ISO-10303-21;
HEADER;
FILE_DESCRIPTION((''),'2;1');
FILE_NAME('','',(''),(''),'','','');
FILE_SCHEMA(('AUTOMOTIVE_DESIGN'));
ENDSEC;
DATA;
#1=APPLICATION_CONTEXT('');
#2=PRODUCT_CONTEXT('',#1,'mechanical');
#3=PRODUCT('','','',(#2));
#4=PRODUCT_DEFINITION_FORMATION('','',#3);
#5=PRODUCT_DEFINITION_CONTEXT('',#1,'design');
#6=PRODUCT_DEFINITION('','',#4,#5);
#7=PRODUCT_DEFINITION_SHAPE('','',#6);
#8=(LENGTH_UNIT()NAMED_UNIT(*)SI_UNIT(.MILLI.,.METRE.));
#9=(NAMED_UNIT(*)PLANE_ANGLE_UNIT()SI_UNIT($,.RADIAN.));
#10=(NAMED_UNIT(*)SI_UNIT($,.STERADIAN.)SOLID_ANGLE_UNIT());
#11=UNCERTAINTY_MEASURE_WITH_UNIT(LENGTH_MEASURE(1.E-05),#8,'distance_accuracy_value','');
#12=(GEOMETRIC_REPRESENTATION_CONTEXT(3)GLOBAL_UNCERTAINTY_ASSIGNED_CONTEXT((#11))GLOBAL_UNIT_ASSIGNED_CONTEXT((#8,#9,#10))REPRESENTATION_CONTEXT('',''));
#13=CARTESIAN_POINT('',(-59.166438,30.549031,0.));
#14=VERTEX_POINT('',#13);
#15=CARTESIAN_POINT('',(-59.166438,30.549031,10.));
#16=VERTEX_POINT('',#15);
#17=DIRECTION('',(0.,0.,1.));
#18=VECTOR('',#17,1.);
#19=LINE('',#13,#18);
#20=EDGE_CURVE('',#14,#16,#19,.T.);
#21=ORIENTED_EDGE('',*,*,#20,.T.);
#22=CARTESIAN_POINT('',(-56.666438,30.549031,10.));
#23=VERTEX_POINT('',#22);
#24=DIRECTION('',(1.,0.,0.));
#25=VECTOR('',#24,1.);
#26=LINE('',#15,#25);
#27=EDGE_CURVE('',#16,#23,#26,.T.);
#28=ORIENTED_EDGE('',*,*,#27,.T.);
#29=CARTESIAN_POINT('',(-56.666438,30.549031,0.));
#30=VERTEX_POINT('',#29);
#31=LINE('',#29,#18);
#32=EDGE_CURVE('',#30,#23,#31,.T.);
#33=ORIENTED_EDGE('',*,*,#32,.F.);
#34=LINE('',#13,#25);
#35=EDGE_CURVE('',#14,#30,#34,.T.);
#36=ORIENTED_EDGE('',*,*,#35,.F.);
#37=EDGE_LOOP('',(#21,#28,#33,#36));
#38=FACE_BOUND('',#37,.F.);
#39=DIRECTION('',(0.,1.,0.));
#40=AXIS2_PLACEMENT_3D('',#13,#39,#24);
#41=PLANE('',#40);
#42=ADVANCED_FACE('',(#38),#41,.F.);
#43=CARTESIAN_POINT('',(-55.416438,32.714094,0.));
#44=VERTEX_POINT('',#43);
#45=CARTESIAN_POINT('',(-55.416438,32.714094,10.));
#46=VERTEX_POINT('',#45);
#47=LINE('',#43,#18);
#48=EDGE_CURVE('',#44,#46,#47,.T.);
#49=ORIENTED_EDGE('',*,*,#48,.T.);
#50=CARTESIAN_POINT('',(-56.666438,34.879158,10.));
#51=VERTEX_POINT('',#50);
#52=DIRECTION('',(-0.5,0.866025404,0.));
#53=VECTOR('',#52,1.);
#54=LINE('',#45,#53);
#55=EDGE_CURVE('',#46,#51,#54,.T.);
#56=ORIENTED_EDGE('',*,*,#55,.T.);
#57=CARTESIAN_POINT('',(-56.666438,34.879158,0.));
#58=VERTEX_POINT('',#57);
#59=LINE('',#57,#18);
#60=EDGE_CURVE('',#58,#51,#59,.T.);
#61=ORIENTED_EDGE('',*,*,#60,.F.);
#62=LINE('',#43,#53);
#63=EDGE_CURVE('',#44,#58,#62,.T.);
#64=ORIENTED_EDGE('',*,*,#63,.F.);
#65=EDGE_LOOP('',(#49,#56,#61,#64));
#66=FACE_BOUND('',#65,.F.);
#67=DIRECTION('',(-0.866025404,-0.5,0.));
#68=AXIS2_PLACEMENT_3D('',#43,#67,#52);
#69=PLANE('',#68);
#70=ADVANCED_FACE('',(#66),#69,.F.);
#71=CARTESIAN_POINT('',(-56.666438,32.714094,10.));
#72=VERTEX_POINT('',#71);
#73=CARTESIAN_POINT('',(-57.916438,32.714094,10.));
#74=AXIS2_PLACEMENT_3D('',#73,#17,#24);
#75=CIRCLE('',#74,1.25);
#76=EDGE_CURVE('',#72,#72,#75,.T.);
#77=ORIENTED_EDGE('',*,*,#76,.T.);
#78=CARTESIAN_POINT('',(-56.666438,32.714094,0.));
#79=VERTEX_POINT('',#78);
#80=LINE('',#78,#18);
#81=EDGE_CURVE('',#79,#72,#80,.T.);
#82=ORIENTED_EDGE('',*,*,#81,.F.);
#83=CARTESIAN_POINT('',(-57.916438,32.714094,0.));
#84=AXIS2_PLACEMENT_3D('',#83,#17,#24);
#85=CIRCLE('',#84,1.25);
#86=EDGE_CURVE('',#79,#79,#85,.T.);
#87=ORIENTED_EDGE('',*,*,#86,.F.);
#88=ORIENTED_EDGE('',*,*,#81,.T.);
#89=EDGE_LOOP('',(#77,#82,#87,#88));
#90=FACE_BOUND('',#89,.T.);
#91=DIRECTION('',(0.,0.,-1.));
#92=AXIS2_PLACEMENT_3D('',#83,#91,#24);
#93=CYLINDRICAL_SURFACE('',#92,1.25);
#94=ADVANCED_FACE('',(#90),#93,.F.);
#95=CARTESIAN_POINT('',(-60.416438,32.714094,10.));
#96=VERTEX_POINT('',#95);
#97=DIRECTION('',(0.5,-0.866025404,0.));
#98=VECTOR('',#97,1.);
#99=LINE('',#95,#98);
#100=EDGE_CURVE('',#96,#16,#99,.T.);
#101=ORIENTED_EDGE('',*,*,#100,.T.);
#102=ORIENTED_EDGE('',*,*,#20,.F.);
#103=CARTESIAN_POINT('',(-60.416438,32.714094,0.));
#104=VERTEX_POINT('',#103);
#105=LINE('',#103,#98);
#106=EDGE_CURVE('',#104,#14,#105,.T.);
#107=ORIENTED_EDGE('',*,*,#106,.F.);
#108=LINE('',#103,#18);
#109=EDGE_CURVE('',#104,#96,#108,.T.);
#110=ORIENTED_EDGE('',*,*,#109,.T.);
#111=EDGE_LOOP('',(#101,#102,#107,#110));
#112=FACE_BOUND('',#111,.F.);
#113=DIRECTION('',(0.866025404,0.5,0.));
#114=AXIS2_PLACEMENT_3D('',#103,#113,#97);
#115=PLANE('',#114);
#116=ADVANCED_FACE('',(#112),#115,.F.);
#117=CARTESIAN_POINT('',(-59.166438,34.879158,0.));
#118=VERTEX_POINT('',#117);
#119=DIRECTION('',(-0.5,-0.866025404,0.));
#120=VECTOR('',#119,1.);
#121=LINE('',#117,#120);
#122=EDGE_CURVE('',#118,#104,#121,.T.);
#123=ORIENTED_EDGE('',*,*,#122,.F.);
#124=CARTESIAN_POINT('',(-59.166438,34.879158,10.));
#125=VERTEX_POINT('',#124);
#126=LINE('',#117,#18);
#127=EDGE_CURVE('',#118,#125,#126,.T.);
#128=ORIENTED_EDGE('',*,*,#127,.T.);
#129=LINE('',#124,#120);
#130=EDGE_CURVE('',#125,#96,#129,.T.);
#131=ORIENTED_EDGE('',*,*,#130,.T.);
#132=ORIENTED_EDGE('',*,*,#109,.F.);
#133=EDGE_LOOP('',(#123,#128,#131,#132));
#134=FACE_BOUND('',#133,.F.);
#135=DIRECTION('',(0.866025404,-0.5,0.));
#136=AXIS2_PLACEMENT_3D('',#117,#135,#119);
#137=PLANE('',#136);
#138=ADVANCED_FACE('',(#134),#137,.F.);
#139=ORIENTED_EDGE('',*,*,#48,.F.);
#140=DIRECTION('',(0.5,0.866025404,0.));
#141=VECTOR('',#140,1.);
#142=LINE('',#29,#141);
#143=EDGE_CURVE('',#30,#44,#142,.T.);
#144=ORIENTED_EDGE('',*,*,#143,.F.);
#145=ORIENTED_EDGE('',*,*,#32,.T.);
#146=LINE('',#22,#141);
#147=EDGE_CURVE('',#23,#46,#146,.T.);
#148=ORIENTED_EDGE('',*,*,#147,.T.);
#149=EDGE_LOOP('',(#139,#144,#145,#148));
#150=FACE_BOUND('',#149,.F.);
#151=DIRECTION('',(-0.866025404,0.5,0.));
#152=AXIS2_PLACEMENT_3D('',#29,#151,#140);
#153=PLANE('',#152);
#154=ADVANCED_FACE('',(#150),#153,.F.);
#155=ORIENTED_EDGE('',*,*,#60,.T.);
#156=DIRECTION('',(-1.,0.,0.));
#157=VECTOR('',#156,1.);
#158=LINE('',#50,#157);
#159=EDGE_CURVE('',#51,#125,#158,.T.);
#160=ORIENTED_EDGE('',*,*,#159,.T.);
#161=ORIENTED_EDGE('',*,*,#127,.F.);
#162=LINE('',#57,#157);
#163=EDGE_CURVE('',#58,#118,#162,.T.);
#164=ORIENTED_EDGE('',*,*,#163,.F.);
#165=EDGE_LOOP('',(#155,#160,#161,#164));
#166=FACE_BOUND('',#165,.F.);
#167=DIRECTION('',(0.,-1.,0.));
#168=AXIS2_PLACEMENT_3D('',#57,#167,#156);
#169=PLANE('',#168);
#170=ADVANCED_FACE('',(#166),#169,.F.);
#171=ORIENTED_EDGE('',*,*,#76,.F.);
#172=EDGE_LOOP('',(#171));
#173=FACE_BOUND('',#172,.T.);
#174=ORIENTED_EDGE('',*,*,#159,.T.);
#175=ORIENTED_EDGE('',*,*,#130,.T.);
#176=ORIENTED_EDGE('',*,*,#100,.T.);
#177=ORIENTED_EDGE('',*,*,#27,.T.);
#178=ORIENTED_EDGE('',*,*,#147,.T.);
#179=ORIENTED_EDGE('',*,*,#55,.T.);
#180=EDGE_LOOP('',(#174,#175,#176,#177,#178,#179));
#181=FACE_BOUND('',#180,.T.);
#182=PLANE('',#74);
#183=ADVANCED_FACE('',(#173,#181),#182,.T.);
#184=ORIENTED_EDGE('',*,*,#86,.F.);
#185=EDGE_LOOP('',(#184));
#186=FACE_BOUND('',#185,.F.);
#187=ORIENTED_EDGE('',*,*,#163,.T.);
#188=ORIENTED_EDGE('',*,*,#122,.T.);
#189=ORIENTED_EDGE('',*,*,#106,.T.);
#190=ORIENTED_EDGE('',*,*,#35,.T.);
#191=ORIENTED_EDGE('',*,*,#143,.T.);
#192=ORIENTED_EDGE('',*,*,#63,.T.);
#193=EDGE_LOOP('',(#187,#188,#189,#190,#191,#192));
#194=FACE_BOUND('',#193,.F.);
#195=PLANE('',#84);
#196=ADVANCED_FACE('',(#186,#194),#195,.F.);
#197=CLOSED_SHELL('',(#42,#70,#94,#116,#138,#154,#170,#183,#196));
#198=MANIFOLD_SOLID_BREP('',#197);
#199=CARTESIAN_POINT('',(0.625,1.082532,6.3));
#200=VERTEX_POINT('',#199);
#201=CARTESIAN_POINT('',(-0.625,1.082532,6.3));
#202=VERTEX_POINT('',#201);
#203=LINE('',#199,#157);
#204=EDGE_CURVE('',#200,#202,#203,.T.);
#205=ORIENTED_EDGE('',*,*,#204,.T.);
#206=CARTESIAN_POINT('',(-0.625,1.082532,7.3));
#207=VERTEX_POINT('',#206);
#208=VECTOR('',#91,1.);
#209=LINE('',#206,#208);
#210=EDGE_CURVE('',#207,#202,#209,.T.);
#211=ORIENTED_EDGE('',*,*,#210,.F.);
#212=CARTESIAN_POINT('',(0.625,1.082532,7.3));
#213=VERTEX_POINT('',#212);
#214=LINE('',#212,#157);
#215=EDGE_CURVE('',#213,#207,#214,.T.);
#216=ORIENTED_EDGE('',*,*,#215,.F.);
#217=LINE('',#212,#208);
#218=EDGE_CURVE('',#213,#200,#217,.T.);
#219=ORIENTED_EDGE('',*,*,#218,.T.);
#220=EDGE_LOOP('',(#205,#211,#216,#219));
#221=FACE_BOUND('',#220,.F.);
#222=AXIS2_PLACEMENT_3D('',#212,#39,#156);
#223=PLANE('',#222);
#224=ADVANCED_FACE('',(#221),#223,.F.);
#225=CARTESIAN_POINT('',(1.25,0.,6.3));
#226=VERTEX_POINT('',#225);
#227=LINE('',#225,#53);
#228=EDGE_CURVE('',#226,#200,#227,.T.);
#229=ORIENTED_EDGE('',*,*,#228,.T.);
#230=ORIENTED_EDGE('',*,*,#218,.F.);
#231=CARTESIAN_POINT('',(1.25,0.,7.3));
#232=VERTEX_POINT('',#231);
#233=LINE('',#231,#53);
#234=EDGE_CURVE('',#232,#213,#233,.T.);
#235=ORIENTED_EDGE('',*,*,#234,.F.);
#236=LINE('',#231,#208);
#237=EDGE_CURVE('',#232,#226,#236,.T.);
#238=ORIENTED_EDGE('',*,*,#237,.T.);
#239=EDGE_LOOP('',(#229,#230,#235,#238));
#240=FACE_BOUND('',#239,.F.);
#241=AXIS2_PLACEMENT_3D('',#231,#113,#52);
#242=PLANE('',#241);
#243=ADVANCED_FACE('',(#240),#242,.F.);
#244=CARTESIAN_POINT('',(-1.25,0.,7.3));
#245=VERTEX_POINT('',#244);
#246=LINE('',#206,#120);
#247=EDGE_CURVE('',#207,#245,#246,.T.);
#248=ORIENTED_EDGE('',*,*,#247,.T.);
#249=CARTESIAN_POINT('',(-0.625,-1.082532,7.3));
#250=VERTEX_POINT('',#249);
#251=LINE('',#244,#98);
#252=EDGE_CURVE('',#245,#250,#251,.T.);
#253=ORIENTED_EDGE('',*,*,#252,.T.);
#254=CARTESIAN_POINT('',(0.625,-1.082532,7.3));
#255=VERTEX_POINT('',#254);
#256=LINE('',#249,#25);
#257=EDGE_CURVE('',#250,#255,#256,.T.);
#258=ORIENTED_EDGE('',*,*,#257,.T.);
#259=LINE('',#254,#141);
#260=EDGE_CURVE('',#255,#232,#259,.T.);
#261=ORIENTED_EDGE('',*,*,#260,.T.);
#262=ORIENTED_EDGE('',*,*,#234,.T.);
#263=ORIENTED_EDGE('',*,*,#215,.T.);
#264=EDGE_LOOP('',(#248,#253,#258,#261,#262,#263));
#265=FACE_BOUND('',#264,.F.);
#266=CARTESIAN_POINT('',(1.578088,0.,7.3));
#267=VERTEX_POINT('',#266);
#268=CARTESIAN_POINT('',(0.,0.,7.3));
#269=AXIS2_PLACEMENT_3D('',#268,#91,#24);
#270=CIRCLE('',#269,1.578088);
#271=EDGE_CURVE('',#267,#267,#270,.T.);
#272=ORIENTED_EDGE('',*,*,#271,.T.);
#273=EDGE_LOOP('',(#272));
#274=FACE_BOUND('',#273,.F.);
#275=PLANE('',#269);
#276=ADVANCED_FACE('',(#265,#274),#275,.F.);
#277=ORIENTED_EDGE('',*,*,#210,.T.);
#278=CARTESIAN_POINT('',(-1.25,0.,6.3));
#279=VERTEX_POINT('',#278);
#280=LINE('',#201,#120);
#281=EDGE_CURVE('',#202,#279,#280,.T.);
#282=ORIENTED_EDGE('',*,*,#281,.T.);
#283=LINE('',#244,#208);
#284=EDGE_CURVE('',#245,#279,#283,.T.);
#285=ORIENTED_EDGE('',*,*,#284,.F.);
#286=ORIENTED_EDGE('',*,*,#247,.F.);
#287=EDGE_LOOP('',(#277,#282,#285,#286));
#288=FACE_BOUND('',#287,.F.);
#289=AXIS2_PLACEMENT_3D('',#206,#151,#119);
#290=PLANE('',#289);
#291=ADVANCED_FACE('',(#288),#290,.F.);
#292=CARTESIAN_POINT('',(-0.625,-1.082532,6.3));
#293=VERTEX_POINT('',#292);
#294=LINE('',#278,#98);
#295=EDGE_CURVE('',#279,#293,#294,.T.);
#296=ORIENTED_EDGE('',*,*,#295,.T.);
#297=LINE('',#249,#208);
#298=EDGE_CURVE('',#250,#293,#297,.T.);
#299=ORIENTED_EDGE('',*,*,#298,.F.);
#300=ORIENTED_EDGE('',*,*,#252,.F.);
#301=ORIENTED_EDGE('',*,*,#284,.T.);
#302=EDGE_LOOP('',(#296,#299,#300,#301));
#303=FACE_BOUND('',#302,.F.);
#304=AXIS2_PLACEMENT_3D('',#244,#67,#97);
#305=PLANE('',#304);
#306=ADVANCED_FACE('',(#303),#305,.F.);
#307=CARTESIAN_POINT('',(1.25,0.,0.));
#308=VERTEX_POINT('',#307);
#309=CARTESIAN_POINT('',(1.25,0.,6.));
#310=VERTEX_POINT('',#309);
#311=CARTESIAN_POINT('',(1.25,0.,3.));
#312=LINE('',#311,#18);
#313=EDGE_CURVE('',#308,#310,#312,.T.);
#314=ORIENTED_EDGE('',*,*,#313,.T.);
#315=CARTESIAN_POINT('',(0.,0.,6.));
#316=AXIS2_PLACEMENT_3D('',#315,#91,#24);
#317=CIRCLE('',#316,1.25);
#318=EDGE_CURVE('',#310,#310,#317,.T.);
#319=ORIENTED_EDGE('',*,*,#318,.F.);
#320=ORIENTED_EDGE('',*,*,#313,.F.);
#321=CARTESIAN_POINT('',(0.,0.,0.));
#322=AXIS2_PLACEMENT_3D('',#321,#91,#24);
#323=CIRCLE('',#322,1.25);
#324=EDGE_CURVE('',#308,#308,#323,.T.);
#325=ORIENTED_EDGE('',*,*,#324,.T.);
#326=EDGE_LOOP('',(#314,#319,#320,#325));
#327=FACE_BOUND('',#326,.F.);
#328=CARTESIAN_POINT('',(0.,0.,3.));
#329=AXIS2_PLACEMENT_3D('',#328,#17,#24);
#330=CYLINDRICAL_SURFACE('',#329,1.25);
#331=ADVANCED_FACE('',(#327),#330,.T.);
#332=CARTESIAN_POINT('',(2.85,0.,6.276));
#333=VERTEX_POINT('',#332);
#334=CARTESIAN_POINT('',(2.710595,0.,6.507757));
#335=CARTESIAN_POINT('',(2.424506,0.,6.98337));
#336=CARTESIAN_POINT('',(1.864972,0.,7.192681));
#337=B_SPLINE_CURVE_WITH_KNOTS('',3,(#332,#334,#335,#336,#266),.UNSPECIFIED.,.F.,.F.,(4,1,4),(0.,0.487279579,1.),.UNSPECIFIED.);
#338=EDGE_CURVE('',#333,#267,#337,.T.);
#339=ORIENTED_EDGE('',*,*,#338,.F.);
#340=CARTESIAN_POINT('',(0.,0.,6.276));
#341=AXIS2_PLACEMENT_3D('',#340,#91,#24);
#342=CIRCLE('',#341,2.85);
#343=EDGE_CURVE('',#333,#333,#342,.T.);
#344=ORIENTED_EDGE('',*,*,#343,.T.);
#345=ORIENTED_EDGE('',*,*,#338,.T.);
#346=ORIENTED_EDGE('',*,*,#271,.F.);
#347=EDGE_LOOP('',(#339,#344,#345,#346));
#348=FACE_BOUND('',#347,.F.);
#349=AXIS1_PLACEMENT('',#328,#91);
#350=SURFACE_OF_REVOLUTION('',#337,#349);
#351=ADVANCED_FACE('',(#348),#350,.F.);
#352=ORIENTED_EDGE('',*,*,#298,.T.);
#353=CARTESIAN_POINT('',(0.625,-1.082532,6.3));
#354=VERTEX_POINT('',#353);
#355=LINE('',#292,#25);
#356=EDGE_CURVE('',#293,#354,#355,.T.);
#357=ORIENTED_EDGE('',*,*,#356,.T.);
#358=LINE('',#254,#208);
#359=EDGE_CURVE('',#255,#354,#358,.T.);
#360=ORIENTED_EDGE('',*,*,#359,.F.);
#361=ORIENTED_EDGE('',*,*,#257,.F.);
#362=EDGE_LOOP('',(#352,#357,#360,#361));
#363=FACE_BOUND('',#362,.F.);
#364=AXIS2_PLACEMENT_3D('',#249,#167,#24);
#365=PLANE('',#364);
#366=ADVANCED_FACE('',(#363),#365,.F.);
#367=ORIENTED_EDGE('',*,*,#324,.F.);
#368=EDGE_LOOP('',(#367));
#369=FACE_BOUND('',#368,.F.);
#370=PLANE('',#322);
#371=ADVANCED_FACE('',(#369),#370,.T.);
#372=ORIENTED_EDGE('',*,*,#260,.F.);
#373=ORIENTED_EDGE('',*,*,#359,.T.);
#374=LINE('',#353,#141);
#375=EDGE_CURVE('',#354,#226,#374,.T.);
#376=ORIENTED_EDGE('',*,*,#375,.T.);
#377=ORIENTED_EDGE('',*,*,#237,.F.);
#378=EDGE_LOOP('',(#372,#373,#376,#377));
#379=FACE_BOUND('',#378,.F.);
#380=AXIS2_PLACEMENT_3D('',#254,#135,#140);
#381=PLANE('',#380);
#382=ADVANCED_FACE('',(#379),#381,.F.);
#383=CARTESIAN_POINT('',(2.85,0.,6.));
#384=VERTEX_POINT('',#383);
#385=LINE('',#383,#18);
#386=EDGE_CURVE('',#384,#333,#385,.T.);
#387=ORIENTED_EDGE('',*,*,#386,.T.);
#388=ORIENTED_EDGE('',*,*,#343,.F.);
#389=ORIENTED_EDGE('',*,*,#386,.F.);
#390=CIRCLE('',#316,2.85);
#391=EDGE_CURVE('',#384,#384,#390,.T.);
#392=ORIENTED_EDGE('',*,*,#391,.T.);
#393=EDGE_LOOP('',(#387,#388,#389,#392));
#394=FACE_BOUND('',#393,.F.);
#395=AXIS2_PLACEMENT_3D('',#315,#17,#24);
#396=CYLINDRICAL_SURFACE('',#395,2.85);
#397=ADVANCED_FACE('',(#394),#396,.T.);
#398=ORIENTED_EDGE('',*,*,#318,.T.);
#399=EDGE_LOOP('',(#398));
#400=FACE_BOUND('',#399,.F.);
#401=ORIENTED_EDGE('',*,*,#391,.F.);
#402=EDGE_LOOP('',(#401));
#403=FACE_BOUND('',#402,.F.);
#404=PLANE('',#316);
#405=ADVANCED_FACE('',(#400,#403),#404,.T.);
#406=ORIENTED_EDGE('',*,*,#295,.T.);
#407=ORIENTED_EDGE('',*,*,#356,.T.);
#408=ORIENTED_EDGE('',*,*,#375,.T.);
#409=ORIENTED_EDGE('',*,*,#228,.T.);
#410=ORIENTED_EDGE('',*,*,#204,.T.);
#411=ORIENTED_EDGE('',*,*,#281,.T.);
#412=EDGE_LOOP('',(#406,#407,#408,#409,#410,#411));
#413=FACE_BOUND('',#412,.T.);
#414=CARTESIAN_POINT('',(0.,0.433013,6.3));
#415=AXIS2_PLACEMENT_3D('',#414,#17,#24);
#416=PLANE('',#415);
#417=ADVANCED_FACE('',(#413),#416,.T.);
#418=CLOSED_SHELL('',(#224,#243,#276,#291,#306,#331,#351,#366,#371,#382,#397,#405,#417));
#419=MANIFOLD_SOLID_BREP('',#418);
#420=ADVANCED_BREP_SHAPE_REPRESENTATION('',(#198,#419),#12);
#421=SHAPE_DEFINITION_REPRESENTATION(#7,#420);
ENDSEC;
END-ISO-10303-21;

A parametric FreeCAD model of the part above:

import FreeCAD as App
import Part
import Sketcher
from FreeCAD import Vector
Q = App.Units.Quantity

doc = App.newDocument("Part")
params = doc.addObject("Spreadsheet::Sheet", "Params")
for row, (alias, value) in enumerate([
    ("sketch1_height", "6 mm"),
    ("sketch1_width", "1.6 mm"),
    ("revolution_angle", "360 deg"),
    ("sketch2_width", "1.25 mm"),
    ("pocket1_length", "1 mm"),
    ("sketch3_diameter", "2.5 mm"),
    ("sketch3_width", "2.5 mm"),
    ("pad1_length", "10 mm"),
], start=1):
    params.set(f"A{row}", alias)
    params.set(f"B{row}", "=" + value)
    params.setAlias(f"B{row}", alias)

body = doc.addObject("PartDesign::Body", "Body")

# Sketch on XZ plane
sketch1 = body.newObject("Sketcher::SketchObject", "Sketch")
sketch1.AttachmentSupport = (doc.getObject("XZ_Plane"), [""])
sketch1.MapMode = "FlatFace"
sketch1.addGeometry([
    Part.LineSegment(Vector(0, 0, 0), Vector(1.25, 0, 0)),  # 0
    Part.LineSegment(Vector(1.25, 0, 0), Vector(1.25, 6, 0)),  # 1
    Part.LineSegment(Vector(1.25, 6, 0), Vector(2.85, 6, 0)),  # 2
    Part.LineSegment(Vector(2.85, 6, 0), Vector(2.85, 6.276, 0)),  # 3
    Part.BSplineCurve([Vector(2.85, 6.276, 0), Vector(2.710595, 6.507757, 0), Vector(2.424506, 6.98337, 0), Vector(1.864972, 7.192681, 0), Vector(1.578088, 7.3, 0)], [4, 1, 4], [0, 0.487279579, 1], False, 3, [1, 1, 1, 1, 1], False),  # 4
    Part.LineSegment(Vector(1.578088, 7.3, 0), Vector(0, 7.3, 0)),  # 5
    Part.LineSegment(Vector(0, 7.3, 0), Vector(0, 0, 0)),  # 6
], False)
sketch1.addConstraint([
    Sketcher.Constraint("Block", 4),
    Sketcher.Constraint("Coincident", 0, 2, 1, 1),
    Sketcher.Constraint("Coincident", 1, 2, 2, 1),
    Sketcher.Constraint("Coincident", 2, 2, 3, 1),
    Sketcher.Constraint("Coincident", 3, 2, 4, 1),
    Sketcher.Constraint("Coincident", 4, 2, 5, 1),
    Sketcher.Constraint("Coincident", 5, 2, 6, 1),
    Sketcher.Constraint("Coincident", 6, 2, 0, 1),
    Sketcher.Constraint("Horizontal", 0),
    Sketcher.Constraint("Vertical", 1),
    Sketcher.Constraint("Horizontal", 2),
    Sketcher.Constraint("Vertical", 3),
    Sketcher.Constraint("Horizontal", 5),
    Sketcher.Constraint("Vertical", 6),
    Sketcher.Constraint("Coincident", 6, 2, -1, 1),
    Sketcher.Constraint("DistanceY", 1, 1, 1, 2, 6.0),
    Sketcher.Constraint("DistanceX", 2, 1, 2, 2, 1.6),
])
sketch1.setExpression("Constraints[15]", "Params.sketch1_height")
sketch1.setExpression("Constraints[16]", "Params.sketch1_width")
revolution = body.newObject("PartDesign::Revolution", "Revolution")
revolution.Profile = sketch1
revolution.ReferenceAxis = (sketch1, ["V_Axis"])
revolution.setExpression("Angle", "Params.revolution_angle")

# Sketch on XY plane
sketch2 = body.newObject("Sketcher::SketchObject", "Sketch001")
sketch2.AttachmentSupport = (doc.getObject("XY_Plane"), [""])
sketch2.MapMode = "FlatFace"
sketch2.AttachmentOffset = App.Placement(Vector(0, 0, 7.3), App.Rotation())
sketch2.addGeometry([
    Part.LineSegment(Vector(1.25, 0, 0), Vector(0.625, 1.082532, 0)),  # 0
    Part.LineSegment(Vector(0.625, 1.082532, 0), Vector(-0.625, 1.082532, 0)),  # 1
    Part.LineSegment(Vector(-0.625, 1.082532, 0), Vector(-1.25, 0, 0)),  # 2
    Part.LineSegment(Vector(-1.25, 0, 0), Vector(-0.625, -1.082532, 0)),  # 3
    Part.LineSegment(Vector(-0.625, -1.082532, 0), Vector(0.625, -1.082532, 0)),  # 4
    Part.LineSegment(Vector(0.625, -1.082532, 0), Vector(1.25, 0, 0)),  # 5
], False)
sketch2.addConstraint([
    Sketcher.Constraint("Coincident", 0, 2, 1, 1),
    Sketcher.Constraint("Coincident", 1, 2, 2, 1),
    Sketcher.Constraint("Coincident", 2, 2, 3, 1),
    Sketcher.Constraint("Coincident", 3, 2, 4, 1),
    Sketcher.Constraint("Coincident", 4, 2, 5, 1),
    Sketcher.Constraint("Coincident", 5, 2, 0, 1),
    Sketcher.Constraint("Horizontal", 1),
    Sketcher.Constraint("Horizontal", 4),
    Sketcher.Constraint("Symmetric", 0, 2, 3, 2, -1, 1),
    Sketcher.Constraint("Symmetric", 2, 2, 5, 2, -1, 1),
    Sketcher.Constraint("PointOnObject", 2, 2, -1),
    Sketcher.Constraint("Parallel", 2, 5),
    Sketcher.Constraint("Vertical", 1, 2, 3, 2),
    Sketcher.Constraint("Angle", 0, Q("120 deg")),
    Sketcher.Constraint("DistanceX", 1, 2, 1, 1, 1.25),
    Sketcher.Constraint("DistanceX", 2, 2, 5, 2, 2.5),
])
sketch2.setExpression("Constraints[14]", "Params.sketch2_width")
pocket1 = body.newObject("PartDesign::Pocket", "Pocket")
pocket1.Profile = sketch2
pocket1.setExpression("Length", "Params.pocket1_length")
body2 = doc.addObject("PartDesign::Body", "Body001")

# Sketch on XY plane
sketch3 = body2.newObject("Sketcher::SketchObject", "Sketch002")
sketch3.AttachmentSupport = (doc.getObject("XY_Plane001"), [""])
sketch3.MapMode = "FlatFace"
sketch3.addGeometry([
    Part.LineSegment(Vector(-56.666438, 30.549031, 0), Vector(-55.416438, 32.714094, 0)),  # 0
    Part.LineSegment(Vector(-55.416438, 32.714094, 0), Vector(-56.666438, 34.879158, 0)),  # 1
    Part.LineSegment(Vector(-56.666438, 34.879158, 0), Vector(-59.166438, 34.879158, 0)),  # 2
    Part.LineSegment(Vector(-59.166438, 34.879158, 0), Vector(-60.416438, 32.714094, 0)),  # 3
    Part.LineSegment(Vector(-60.416438, 32.714094, 0), Vector(-59.166438, 30.549031, 0)),  # 4
    Part.LineSegment(Vector(-59.166438, 30.549031, 0), Vector(-56.666438, 30.549031, 0)),  # 5
    Part.Circle(Vector(-57.916438, 32.714094, 0), Vector(0, 0, 1), 1.25),  # 6
], False)
sketch3.addConstraint([
    Sketcher.Constraint("Coincident", 0, 2, 1, 1),
    Sketcher.Constraint("Coincident", 1, 2, 2, 1),
    Sketcher.Constraint("Coincident", 2, 2, 3, 1),
    Sketcher.Constraint("Coincident", 3, 2, 4, 1),
    Sketcher.Constraint("Coincident", 4, 2, 5, 1),
    Sketcher.Constraint("Coincident", 5, 2, 0, 1),
    Sketcher.Constraint("Horizontal", 2),
    Sketcher.Constraint("Horizontal", 5),
    Sketcher.Constraint("Parallel", 0, 3),
    Sketcher.Constraint("Parallel", 1, 4),
    Sketcher.Constraint("Horizontal", 6, 3, 0, 2),
    Sketcher.Constraint("Horizontal", 0, 2, 3, 2),
    Sketcher.Constraint("Vertical", 2, 2, 4, 2),
    Sketcher.Constraint("Vertical", 1, 2, 5, 2),
    Sketcher.Constraint("Diameter", 6, 2.5),
    Sketcher.Constraint("Angle", 0, Q("60 deg")),
    Sketcher.Constraint("DistanceX", 2, 2, 2, 1, 2.5),
    Sketcher.Constraint("DistanceX", 3, 2, 0, 2, 5.0),
    Sketcher.Constraint("DistanceX", 6, 3, 0, 2, 2.5),
    Sketcher.Constraint("DistanceY", -1, 1, 4, 2, 30.549031),
    Sketcher.Constraint("DistanceX", 6, 3, -1, 1, 57.916438),
])
sketch3.setExpression("Constraints[14]", "Params.sketch3_diameter")
sketch3.setExpression("Constraints[16]", "Params.sketch3_width")
pad1 = body2.newObject("PartDesign::Pad", "Pad")
pad1.Profile = sketch3
pad1.setExpression("Length", "Params.pad1_length")

doc.recompute()
